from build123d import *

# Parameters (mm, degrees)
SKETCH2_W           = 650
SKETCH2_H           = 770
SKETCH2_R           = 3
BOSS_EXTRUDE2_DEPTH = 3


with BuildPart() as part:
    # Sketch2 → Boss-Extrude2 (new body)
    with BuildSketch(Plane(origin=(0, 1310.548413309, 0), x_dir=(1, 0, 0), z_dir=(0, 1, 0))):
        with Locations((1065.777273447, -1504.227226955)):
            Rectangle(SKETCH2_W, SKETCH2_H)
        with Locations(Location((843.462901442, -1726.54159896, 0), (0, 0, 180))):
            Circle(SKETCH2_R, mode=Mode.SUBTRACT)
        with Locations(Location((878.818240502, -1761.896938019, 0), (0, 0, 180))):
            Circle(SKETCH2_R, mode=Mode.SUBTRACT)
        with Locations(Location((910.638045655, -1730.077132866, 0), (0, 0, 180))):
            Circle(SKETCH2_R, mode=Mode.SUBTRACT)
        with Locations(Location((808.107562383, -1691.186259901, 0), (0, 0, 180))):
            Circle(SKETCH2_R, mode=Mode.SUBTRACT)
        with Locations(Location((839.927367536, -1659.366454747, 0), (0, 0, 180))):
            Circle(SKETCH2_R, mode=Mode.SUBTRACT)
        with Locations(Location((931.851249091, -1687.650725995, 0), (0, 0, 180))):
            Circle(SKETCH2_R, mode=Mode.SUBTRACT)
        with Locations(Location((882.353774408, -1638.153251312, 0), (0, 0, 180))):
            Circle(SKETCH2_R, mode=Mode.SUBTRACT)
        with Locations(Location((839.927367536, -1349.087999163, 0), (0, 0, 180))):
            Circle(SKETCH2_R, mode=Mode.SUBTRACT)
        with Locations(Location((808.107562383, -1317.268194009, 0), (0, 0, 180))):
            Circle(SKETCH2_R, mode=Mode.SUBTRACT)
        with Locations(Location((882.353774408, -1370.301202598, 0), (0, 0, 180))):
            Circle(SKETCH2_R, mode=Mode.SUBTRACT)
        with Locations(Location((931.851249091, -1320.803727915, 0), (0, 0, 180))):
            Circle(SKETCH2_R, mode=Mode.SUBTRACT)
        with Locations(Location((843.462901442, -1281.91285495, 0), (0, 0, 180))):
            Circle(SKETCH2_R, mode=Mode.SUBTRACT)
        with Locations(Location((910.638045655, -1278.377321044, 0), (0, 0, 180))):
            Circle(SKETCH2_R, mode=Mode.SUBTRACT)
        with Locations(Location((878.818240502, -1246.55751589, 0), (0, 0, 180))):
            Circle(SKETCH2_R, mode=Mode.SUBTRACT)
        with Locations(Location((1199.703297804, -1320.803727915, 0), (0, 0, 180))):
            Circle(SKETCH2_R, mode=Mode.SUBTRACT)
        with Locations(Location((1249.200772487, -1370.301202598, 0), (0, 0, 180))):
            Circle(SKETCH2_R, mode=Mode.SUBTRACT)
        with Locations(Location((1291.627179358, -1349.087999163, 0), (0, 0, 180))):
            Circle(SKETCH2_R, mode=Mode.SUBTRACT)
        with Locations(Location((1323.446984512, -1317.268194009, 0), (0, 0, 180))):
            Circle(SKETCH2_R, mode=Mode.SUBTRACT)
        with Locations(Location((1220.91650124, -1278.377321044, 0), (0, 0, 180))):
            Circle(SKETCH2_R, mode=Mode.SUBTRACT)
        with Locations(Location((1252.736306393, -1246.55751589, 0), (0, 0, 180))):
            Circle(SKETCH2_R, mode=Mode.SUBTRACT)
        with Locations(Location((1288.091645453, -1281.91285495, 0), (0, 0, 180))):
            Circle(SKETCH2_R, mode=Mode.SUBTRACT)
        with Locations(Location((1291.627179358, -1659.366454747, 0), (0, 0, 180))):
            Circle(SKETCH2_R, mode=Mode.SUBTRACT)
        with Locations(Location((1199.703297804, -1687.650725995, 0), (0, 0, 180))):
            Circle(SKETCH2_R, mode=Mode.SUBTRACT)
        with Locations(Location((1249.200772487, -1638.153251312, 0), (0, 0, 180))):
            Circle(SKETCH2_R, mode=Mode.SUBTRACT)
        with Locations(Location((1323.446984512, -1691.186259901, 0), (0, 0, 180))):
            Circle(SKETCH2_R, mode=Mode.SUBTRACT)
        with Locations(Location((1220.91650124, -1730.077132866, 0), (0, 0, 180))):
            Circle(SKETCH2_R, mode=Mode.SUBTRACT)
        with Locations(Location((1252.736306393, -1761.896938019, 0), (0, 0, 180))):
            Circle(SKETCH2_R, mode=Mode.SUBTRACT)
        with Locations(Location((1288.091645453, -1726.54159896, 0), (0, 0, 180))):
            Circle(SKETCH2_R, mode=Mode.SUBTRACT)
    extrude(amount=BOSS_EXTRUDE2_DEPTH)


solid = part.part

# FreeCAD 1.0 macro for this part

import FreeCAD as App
import Part
import Sketcher
from FreeCAD import Vector

doc = App.newDocument("Part")
body = doc.addObject("PartDesign::Body", "Body")

sketch1 = doc.addObject("Sketcher::SketchObject", "Sketch")
body.addObject(sketch1)
sketch1.AttachmentSupport = (doc.XZ_Plane, [""])
sketch1.MapMode = "FlatFace"
sketch1.AttachmentOffset = App.Placement(Vector(0, 0, -1310.548413), App.Rotation())
sketch1.addGeometry([
    Part.LineSegment(Vector(740.8, 1119.2, 0), Vector(740.8, 1889.2, 0)),
    Part.LineSegment(Vector(740.8, 1889.2, 0), Vector(1390.8, 1889.2, 0)),
    Part.LineSegment(Vector(1390.8, 1889.2, 0), Vector(1390.8, 1119.2, 0)),
    Part.LineSegment(Vector(1390.8, 1119.2, 0), Vector(740.8, 1119.2, 0)),
    Part.Circle(Vector(843.5, 1726.5, 0), Vector(0, 0, 1), 3),
    Part.Circle(Vector(878.8, 1761.9, 0), Vector(0, 0, 1), 3),
    Part.Circle(Vector(910.6, 1730.1, 0), Vector(0, 0, 1), 3),
    Part.Circle(Vector(808.1, 1691.2, 0), Vector(0, 0, 1), 3),
    Part.Circle(Vector(839.9, 1659.4, 0), Vector(0, 0, 1), 3),
    Part.Circle(Vector(931.9, 1687.7, 0), Vector(0, 0, 1), 3),
    Part.Circle(Vector(882.4, 1638.2, 0), Vector(0, 0, 1), 3),
    Part.Circle(Vector(1252.7, 1761.9, 0), Vector(0, 0, 1), 3),
    Part.Circle(Vector(1220.9, 1730.1, 0), Vector(0, 0, 1), 3),
    Part.Circle(Vector(1288.1, 1726.5, 0), Vector(0, 0, 1), 3),
    Part.Circle(Vector(1199.7, 1687.7, 0), Vector(0, 0, 1), 3),
    Part.Circle(Vector(1249.2, 1638.2, 0), Vector(0, 0, 1), 3),
    Part.Circle(Vector(1323.4, 1691.2, 0), Vector(0, 0, 1), 3),
    Part.Circle(Vector(1291.6, 1659.4, 0), Vector(0, 0, 1), 3),
    Part.Circle(Vector(839.9, 1349.1, 0), Vector(0, 0, 1), 3),
    Part.Circle(Vector(808.1, 1317.3, 0), Vector(0, 0, 1), 3),
    Part.Circle(Vector(882.4, 1370.3, 0), Vector(0, 0, 1), 3),
    Part.Circle(Vector(931.9, 1320.8, 0), Vector(0, 0, 1), 3),
    Part.Circle(Vector(843.5, 1281.9, 0), Vector(0, 0, 1), 3),
    Part.Circle(Vector(910.6, 1278.4, 0), Vector(0, 0, 1), 3),
    Part.Circle(Vector(878.8, 1246.6, 0), Vector(0, 0, 1), 3),
    Part.Circle(Vector(1249.2, 1370.3, 0), Vector(0, 0, 1), 3),
    Part.Circle(Vector(1199.7, 1320.8, 0), Vector(0, 0, 1), 3),
    Part.Circle(Vector(1291.6, 1349.1, 0), Vector(0, 0, 1), 3),
    Part.Circle(Vector(1323.4, 1317.3, 0), Vector(0, 0, 1), 3),
    Part.Circle(Vector(1220.9, 1278.4, 0), Vector(0, 0, 1), 3),
    Part.Circle(Vector(1252.7, 1246.6, 0), Vector(0, 0, 1), 3),
    Part.Circle(Vector(1288.1, 1281.9, 0), Vector(0, 0, 1), 3),
], False)
sketch1.addConstraint([
    Sketcher.Constraint("Coincident", 0, 2, 1, 1),
    Sketcher.Constraint("Coincident", 1, 2, 2, 1),
    Sketcher.Constraint("Coincident", 2, 2, 3, 1),
    Sketcher.Constraint("Coincident", 3, 2, 0, 1),
    Sketcher.Constraint("Vertical", 0),
    Sketcher.Constraint("Horizontal", 1),
    Sketcher.Constraint("Vertical", 2),
    Sketcher.Constraint("Horizontal", 3),
    Sketcher.Constraint("Equal", 4, 5),
    Sketcher.Constraint("Equal", 5, 6),
    Sketcher.Constraint("Equal", 6, 7),
    Sketcher.Constraint("Equal", 7, 8),
    Sketcher.Constraint("Equal", 8, 9),
    Sketcher.Constraint("Equal", 9, 10),
    Sketcher.Constraint("Equal", 10, 11),
    Sketcher.Constraint("Equal", 11, 12),
    Sketcher.Constraint("Equal", 12, 13),
    Sketcher.Constraint("Equal", 13, 14),
    Sketcher.Constraint("Equal", 14, 15),
    Sketcher.Constraint("Equal", 15, 16),
    Sketcher.Constraint("Equal", 16, 17),
    Sketcher.Constraint("Equal", 17, 18),
    Sketcher.Constraint("Equal", 18, 19),
    Sketcher.Constraint("Equal", 19, 20),
    Sketcher.Constraint("Equal", 20, 21),
    Sketcher.Constraint("Equal", 21, 22),
    Sketcher.Constraint("Equal", 22, 23),
    Sketcher.Constraint("Equal", 23, 24),
    Sketcher.Constraint("Equal", 24, 25),
    Sketcher.Constraint("Equal", 25, 26),
    Sketcher.Constraint("Equal", 26, 27),
    Sketcher.Constraint("Equal", 27, 28),
    Sketcher.Constraint("Equal", 28, 29),
    Sketcher.Constraint("Equal", 29, 30),
    Sketcher.Constraint("Equal", 30, 31),
    Sketcher.Constraint("Horizontal", 5, 3, 11, 3),
    Sketcher.Constraint("Horizontal", 6, 3, 12, 3),
    Sketcher.Constraint("Horizontal", 4, 3, 13, 3),
    Sketcher.Constraint("Horizontal", 9, 3, 14, 3),
    Sketcher.Constraint("Horizontal", 10, 3, 15, 3),
    Sketcher.Constraint("Horizontal", 7, 3, 16, 3),
    Sketcher.Constraint("Horizontal", 8, 3, 17, 3),
    Sketcher.Constraint("Horizontal", 20, 3, 25, 3),
    Sketcher.Constraint("Horizontal", 21, 3, 26, 3),
    Sketcher.Constraint("Horizontal", 18, 3, 27, 3),
    Sketcher.Constraint("Horizontal", 19, 3, 28, 3),
    Sketcher.Constraint("Horizontal", 23, 3, 29, 3),
    Sketcher.Constraint("Horizontal", 24, 3, 30, 3),
    Sketcher.Constraint("Horizontal", 22, 3, 31, 3),
    Sketcher.Constraint("Vertical", 8, 3, 18, 3),
    Sketcher.Constraint("Vertical", 7, 3, 19, 3),
    Sketcher.Constraint("Vertical", 10, 3, 20, 3),
    Sketcher.Constraint("Vertical", 9, 3, 21, 3),
    Sketcher.Constraint("Vertical", 4, 3, 22, 3),
    Sketcher.Constraint("Vertical", 6, 3, 23, 3),
    Sketcher.Constraint("Vertical", 5, 3, 24, 3),
    Sketcher.Constraint("Vertical", 15, 3, 25, 3),
    Sketcher.Constraint("Vertical", 14, 3, 26, 3),
    Sketcher.Constraint("Vertical", 17, 3, 27, 3),
    Sketcher.Constraint("Vertical", 16, 3, 28, 3),
    Sketcher.Constraint("Vertical", 12, 3, 29, 3),
    Sketcher.Constraint("Vertical", 11, 3, 30, 3),
    Sketcher.Constraint("Vertical", 13, 3, 31, 3),
    Sketcher.Constraint("Diameter", 4, 6.0),
    Sketcher.Constraint("DistanceX", 1, 1, 1, 2, 650.0),
    Sketcher.Constraint("DistanceY", 0, 1, 0, 2, 770.0),
    Sketcher.Constraint("DistanceY", -1, 1, 18, 3, 1349.087999),
    Sketcher.Constraint("DistanceX", -1, 1, 4, 3, 843.462901),
    Sketcher.Constraint("DistanceY", -1, 1, 4, 3, 1726.541599),
    Sketcher.Constraint("DistanceX", -1, 1, 12, 3, 1220.916501),
    Sketcher.Constraint("DistanceX", 6, 3, 13, 3, 377.4536),
    Sketcher.Constraint("DistanceX", -1, 1, 5, 3, 878.818241),
    Sketcher.Constraint("DistanceY", -1, 1, 5, 3, 1761.896938),
    Sketcher.Constraint("DistanceY", -1, 1, 7, 3, 1691.18626),
    Sketcher.Constraint("DistanceX", -1, 1, 9, 3, 931.851249),
    Sketcher.Constraint("DistanceY", -1, 1, 10, 3, 1638.153251),
    Sketcher.Constraint("DistanceX", -1, 1, 17, 3, 1291.627179),
    Sketcher.Constraint("DistanceY", -1, 1, 23, 3, 1278.377321),
    Sketcher.Constraint("DistanceX", 7, 3, 4, 3, 35.355339),
    Sketcher.Constraint("DistanceX", 8, 3, 6, 3, 70.710678),
    Sketcher.Constraint("DistanceY", 8, 3, 6, 3, 70.710678),
    Sketcher.Constraint("DistanceX", 8, 3, 9, 3, 91.923882),
    Sketcher.Constraint("DistanceY", 8, 3, 9, 3, 28.284271),
    Sketcher.Constraint("DistanceX", 10, 3, 6, 3, 28.284271),
    Sketcher.Constraint("DistanceY", 10, 3, 6, 3, 91.923882),
    Sketcher.Constraint("DistanceX", 6, 3, 11, 3, 342.098261),
    Sketcher.Constraint("DistanceX", 14, 3, 11, 3, 53.033009),
    Sketcher.Constraint("DistanceX", 12, 3, 15, 3, 28.284271),
    Sketcher.Constraint("DistanceX", 13, 3, 16, 3, 35.355339),
    Sketcher.Constraint("DistanceY", 19, 3, 8, 3, 342.098261),
    Sketcher.Constraint("DistanceY", 19, 3, 20, 3, 53.033009),
    Sketcher.Constraint("DistanceY", 21, 3, 18, 3, 28.284271),
    Sketcher.Constraint("DistanceY", 22, 3, 19, 3, 35.355339),
    Sketcher.Constraint("DistanceY", 24, 3, 22, 3, 35.355339),
    Sketcher.Constraint("DistanceY", 5, 3, 0, 2, 127.330289),
    Sketcher.Constraint("DistanceX", 0, 2, 7, 3, 67.330289),
])
pad1 = doc.addObject("PartDesign::Pad", "Pad")
body.addObject(pad1)
pad1.Profile = sketch1
pad1.Length = 3
pad1.Reversed = True

doc.recompute()
